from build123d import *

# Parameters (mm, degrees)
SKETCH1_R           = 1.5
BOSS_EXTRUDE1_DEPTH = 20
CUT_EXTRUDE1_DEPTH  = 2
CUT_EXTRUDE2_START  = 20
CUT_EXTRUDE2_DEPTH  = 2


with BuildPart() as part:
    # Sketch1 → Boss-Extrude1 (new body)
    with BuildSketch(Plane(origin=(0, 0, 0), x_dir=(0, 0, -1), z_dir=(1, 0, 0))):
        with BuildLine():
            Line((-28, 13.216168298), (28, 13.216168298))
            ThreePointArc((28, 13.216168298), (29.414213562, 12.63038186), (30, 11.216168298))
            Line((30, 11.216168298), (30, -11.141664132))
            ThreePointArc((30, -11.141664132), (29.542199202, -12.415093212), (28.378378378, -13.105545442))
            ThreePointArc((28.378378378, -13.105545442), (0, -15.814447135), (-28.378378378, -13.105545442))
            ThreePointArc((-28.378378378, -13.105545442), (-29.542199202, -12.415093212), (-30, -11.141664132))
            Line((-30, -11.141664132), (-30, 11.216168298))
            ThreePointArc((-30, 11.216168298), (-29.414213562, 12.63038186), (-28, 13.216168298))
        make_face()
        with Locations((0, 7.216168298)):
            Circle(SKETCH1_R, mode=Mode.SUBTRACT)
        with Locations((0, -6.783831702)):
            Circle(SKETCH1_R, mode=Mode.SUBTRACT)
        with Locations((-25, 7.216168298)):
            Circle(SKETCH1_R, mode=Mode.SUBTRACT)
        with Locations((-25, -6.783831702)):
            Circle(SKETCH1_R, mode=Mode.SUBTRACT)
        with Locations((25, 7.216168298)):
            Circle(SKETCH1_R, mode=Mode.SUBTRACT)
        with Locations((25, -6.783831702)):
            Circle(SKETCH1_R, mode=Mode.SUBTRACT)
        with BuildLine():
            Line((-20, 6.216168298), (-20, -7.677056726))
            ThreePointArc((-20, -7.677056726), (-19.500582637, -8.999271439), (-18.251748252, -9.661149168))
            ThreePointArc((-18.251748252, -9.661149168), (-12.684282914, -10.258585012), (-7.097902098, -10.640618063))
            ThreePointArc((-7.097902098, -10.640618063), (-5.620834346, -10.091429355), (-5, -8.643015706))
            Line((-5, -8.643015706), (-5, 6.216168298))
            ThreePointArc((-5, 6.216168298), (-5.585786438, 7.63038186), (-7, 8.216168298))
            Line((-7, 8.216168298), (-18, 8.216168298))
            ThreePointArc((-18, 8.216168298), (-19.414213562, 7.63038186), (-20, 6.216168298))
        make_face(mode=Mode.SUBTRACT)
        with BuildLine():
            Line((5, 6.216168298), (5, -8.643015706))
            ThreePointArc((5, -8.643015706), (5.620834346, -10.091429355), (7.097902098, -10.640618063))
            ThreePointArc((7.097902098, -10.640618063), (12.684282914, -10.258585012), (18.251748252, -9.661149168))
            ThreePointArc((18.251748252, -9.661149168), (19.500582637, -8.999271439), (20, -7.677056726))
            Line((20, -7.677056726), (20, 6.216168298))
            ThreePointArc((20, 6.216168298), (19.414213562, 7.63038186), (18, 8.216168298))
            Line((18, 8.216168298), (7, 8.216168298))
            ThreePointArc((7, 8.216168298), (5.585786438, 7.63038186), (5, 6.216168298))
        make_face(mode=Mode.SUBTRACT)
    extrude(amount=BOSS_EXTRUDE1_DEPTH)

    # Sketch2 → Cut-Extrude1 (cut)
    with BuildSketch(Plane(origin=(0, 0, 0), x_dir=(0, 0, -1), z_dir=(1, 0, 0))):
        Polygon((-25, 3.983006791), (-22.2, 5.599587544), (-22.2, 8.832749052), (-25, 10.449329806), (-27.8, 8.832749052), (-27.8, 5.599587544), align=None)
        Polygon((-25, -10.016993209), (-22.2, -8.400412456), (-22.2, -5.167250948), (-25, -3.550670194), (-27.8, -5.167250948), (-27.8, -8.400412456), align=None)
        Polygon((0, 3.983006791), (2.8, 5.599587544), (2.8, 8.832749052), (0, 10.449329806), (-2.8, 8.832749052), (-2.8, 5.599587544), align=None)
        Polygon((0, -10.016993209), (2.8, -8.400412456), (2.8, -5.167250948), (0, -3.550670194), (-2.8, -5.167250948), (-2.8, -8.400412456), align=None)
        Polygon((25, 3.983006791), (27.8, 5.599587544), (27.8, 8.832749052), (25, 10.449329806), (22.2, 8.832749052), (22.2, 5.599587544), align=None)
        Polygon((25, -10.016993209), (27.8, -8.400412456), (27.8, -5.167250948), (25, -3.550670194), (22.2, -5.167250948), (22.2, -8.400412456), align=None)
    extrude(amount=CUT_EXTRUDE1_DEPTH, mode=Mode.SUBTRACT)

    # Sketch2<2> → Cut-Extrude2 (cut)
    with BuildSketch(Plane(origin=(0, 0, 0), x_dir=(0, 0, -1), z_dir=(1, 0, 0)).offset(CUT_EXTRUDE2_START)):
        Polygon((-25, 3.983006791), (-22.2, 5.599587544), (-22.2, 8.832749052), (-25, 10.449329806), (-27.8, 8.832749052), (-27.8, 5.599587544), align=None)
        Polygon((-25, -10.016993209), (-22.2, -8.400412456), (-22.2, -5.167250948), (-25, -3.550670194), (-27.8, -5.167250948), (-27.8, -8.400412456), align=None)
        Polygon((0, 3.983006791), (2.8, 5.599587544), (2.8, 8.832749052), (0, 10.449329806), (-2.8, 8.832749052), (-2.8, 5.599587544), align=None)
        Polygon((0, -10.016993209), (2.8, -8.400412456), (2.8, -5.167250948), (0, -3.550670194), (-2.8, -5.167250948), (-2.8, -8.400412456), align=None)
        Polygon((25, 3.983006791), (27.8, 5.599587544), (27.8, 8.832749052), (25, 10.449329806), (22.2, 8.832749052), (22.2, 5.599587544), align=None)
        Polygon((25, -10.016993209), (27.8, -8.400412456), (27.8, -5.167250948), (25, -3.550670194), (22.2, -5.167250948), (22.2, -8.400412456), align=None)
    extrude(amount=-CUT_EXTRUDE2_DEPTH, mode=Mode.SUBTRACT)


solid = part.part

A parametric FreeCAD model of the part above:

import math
import FreeCAD as App
import Part
import Sketcher
Q = App.Units.Quantity

doc = App.newDocument("Part")
body = doc.addObject("PartDesign::Body", "Body")

sketch1 = body.newObject("Sketcher::SketchObject", "Sketch")
sketch1.AttachmentSupport = (doc.getObject("YZ_Plane"), [""])
sketch1.MapMode = "FlatFace"
sketch1.addGeometry(Part.LineSegment(App.Vector(13.2, -28, 0), App.Vector(13.2, 28, 0)), False)
sketch1.addGeometry(Part.ArcOfCircle(Part.Circle(App.Vector(11.2, 28, 0), App.Vector(0, 0, 1), 2), math.radians(0), math.radians(90)), False)
sketch1.addGeometry(Part.LineSegment(App.Vector(11.2, 30, 0), App.Vector(-11.1, 30, 0)), False)
sketch1.addGeometry(Part.ArcOfCircle(Part.Circle(App.Vector(-11.1, 28, 0), App.Vector(0, 0, 1), 2), math.radians(90), math.radians(169)), False)
sketch1.addGeometry(Part.ArcOfCircle(Part.Circle(App.Vector(134.2, 0, 0), App.Vector(0, 0, 1), 150), math.radians(169), math.radians(191)), False)
sketch1.addGeometry(Part.ArcOfCircle(Part.Circle(App.Vector(-11.1, -28, 0), App.Vector(0, 0, 1), 2), math.radians(-169), math.radians(-90)), False)
sketch1.addGeometry(Part.LineSegment(App.Vector(-11.1, -30, 0), App.Vector(11.2, -30, 0)), False)
sketch1.addGeometry(Part.ArcOfCircle(Part.Circle(App.Vector(11.2, -28, 0), App.Vector(0, 0, 1), 2), math.radians(-90), math.radians(0)), False)
sketch1.addGeometry(Part.Circle(App.Vector(-6.8, -25, 0), App.Vector(0, 0, 1), 1.5), False)
sketch1.addGeometry(Part.ArcOfCircle(Part.Circle(App.Vector(6.2, -7, 0), App.Vector(0, 0, 1), 2), math.radians(0), math.radians(90)), False)
sketch1.addGeometry(Part.LineSegment(App.Vector(8.2, -7, 0), App.Vector(8.2, -18, 0)), False)
sketch1.addGeometry(Part.ArcOfCircle(Part.Circle(App.Vector(6.2, -18, 0), App.Vector(0, 0, 1), 2), math.radians(-90), math.radians(0)), False)
sketch1.addGeometry(Part.LineSegment(App.Vector(6.2, -20, 0), App.Vector(-7.7, -20, 0)), False)
sketch1.addGeometry(Part.ArcOfCircle(Part.Circle(App.Vector(-7.7, -18, 0), App.Vector(0, 0, 1), 2), math.radians(-173), math.radians(-90)), False)
sketch1.addGeometry(Part.ArcOfCircle(Part.Circle(App.Vector(134.2, 0, 0), App.Vector(0, 0, 1), 145), math.radians(-177.19), math.radians(-172.77)), False)
sketch1.addGeometry(Part.ArcOfCircle(Part.Circle(App.Vector(-8.6, -7, 0), App.Vector(0, 0, 1), 2), math.radians(90), math.radians(183)), False)
sketch1.addGeometry(Part.LineSegment(App.Vector(-8.6, -5, 0), App.Vector(6.2, -5, 0)), False)
sketch1.addGeometry(Part.Circle(App.Vector(-6.8, 0, 0), App.Vector(0, 0, 1), 1.5), False)
sketch1.addGeometry(Part.Circle(App.Vector(-6.8, 25, 0), App.Vector(0, 0, 1), 1.5), False)
sketch1.addGeometry(Part.ArcOfCircle(Part.Circle(App.Vector(6.2, 18, 0), App.Vector(0, 0, 1), 2), math.radians(0), math.radians(90)), False)
sketch1.addGeometry(Part.LineSegment(App.Vector(8.2, 18, 0), App.Vector(8.2, 7, 0)), False)
sketch1.addGeometry(Part.ArcOfCircle(Part.Circle(App.Vector(6.2, 7, 0), App.Vector(0, 0, 1), 2), math.radians(-90), math.radians(0)), False)
sketch1.addGeometry(Part.LineSegment(App.Vector(6.2, 5, 0), App.Vector(-8.6, 5, 0)), False)
sketch1.addGeometry(Part.ArcOfCircle(Part.Circle(App.Vector(-8.6, 7, 0), App.Vector(0, 0, 1), 2), math.radians(177), math.radians(270)), False)
sketch1.addGeometry(Part.ArcOfCircle(Part.Circle(App.Vector(134.2, 0, 0), App.Vector(0, 0, 1), 145), math.radians(172.77), math.radians(177.19)), False)
sketch1.addGeometry(Part.ArcOfCircle(Part.Circle(App.Vector(-7.7, 18, 0), App.Vector(0, 0, 1), 2), math.radians(90), math.radians(173)), False)
sketch1.addGeometry(Part.LineSegment(App.Vector(-7.7, 20, 0), App.Vector(6.2, 20, 0)), False)
sketch1.addGeometry(Part.Circle(App.Vector(7.2, -25, 0), App.Vector(0, 0, 1), 1.5), False)
sketch1.addGeometry(Part.Circle(App.Vector(7.2, 0, 0), App.Vector(0, 0, 1), 1.5), False)
sketch1.addGeometry(Part.Circle(App.Vector(7.2, 25, 0), App.Vector(0, 0, 1), 1.5), False)
sketch1.addConstraint(Sketcher.Constraint("Tangent", 0, 2, 1, 1))
sketch1.addConstraint(Sketcher.Constraint("Tangent", 1, 2, 2, 1))
sketch1.addConstraint(Sketcher.Constraint("Tangent", 2, 2, 3, 1))
sketch1.addConstraint(Sketcher.Constraint("Tangent", 3, 2, 4, 1))
sketch1.addConstraint(Sketcher.Constraint("Tangent", 4, 2, 5, 1))
sketch1.addConstraint(Sketcher.Constraint("Tangent", 5, 2, 6, 1))
sketch1.addConstraint(Sketcher.Constraint("Tangent", 6, 2, 7, 1))
sketch1.addConstraint(Sketcher.Constraint("Tangent", 7, 2, 0, 1))
sketch1.addConstraint(Sketcher.Constraint("Tangent", 9, 1, 10, 1))
sketch1.addConstraint(Sketcher.Constraint("Tangent", 10, 2, 11, 2))
sketch1.addConstraint(Sketcher.Constraint("Tangent", 11, 1, 12, 1))
sketch1.addConstraint(Sketcher.Constraint("Tangent", 12, 2, 13, 2))
sketch1.addConstraint(Sketcher.Constraint("Tangent", 13, 1, 14, 2))
sketch1.addConstraint(Sketcher.Constraint("Tangent", 14, 1, 15, 2))
sketch1.addConstraint(Sketcher.Constraint("Tangent", 15, 1, 16, 1))
sketch1.addConstraint(Sketcher.Constraint("Tangent", 16, 2, 9, 2))
sketch1.addConstraint(Sketcher.Constraint("Tangent", 19, 1, 20, 1))
sketch1.addConstraint(Sketcher.Constraint("Tangent", 20, 2, 21, 2))
sketch1.addConstraint(Sketcher.Constraint("Tangent", 21, 1, 22, 1))
sketch1.addConstraint(Sketcher.Constraint("Tangent", 22, 2, 23, 2))
sketch1.addConstraint(Sketcher.Constraint("Tangent", 23, 1, 24, 2))
sketch1.addConstraint(Sketcher.Constraint("Tangent", 24, 1, 25, 2))
sketch1.addConstraint(Sketcher.Constraint("Tangent", 25, 1, 26, 1))
sketch1.addConstraint(Sketcher.Constraint("Tangent", 26, 2, 19, 2))
sketch1.addConstraint(Sketcher.Constraint("Vertical", 0))
sketch1.addConstraint(Sketcher.Constraint("Horizontal", 2))
sketch1.addConstraint(Sketcher.Constraint("Horizontal", 6))
sketch1.addConstraint(Sketcher.Constraint("Vertical", 10))
sketch1.addConstraint(Sketcher.Constraint("Horizontal", 12))
sketch1.addConstraint(Sketcher.Constraint("Horizontal", 16))
sketch1.addConstraint(Sketcher.Constraint("Vertical", 20))
sketch1.addConstraint(Sketcher.Constraint("Horizontal", 22))
sketch1.addConstraint(Sketcher.Constraint("Horizontal", 26))
sketch1.addConstraint(Sketcher.Constraint("Coincident", 14, 3, 4, 3))
sketch1.addConstraint(Sketcher.Constraint("Coincident", 24, 3, 4, 3))
sketch1.addConstraint(Sketcher.Constraint("Equal", 1, 3))
sketch1.addConstraint(Sketcher.Constraint("Equal", 3, 5))
sketch1.addConstraint(Sketcher.Constraint("Equal", 5, 7))
sketch1.addConstraint(Sketcher.Constraint("Equal", 7, 9))
sketch1.addConstraint(Sketcher.Constraint("Equal", 9, 11))
sketch1.addConstraint(Sketcher.Constraint("Equal", 11, 13))
sketch1.addConstraint(Sketcher.Constraint("Equal", 13, 15))
sketch1.addConstraint(Sketcher.Constraint("Equal", 8, 17))
sketch1.addConstraint(Sketcher.Constraint("Equal", 17, 18))
sketch1.addConstraint(Sketcher.Constraint("Equal", 15, 19))
sketch1.addConstraint(Sketcher.Constraint("Equal", 19, 21))
sketch1.addConstraint(Sketcher.Constraint("Equal", 21, 23))
sketch1.addConstraint(Sketcher.Constraint("Equal", 14, 24))
sketch1.addConstraint(Sketcher.Constraint("Equal", 23, 25))
sketch1.addConstraint(Sketcher.Constraint("Equal", 18, 27))
sketch1.addConstraint(Sketcher.Constraint("Equal", 27, 28))
sketch1.addConstraint(Sketcher.Constraint("Equal", 28, 29))
sketch1.addConstraint(Sketcher.Constraint("Symmetric", 3, 3, 5, 3, -1))
sketch1.addConstraint(Sketcher.Constraint("Symmetric", 8, 3, 18, 3, -1))
sketch1.addConstraint(Sketcher.Constraint("Symmetric", 11, 3, 19, 3, -1))
sketch1.addConstraint(Sketcher.Constraint("Symmetric", 27, 3, 29, 3, -1))
sketch1.addConstraint(Sketcher.Constraint("PointOnObject", 17, 3, -1))
sketch1.addConstraint(Sketcher.Constraint("PointOnObject", 28, 3, -1))
sketch1.addConstraint(Sketcher.Constraint("Horizontal", 8, 3, 27, 3))
sketch1.addConstraint(Sketcher.Constraint("Vertical", 8, 3, 17, 3))
sketch1.addConstraint(Sketcher.Constraint("Vertical", 15, 3, 23, 3))
sketch1.addConstraint(Sketcher.Constraint("Vertical", 27, 3, 28, 3))
sketch1.addConstraint(Sketcher.Constraint("Diameter", 8, 3.0))
sketch1.addConstraint(Sketcher.Constraint("Radius", 1, 2.0))
sketch1.addConstraint(Sketcher.Constraint("Radius", 4, 150.0))
sketch1.addConstraint(Sketcher.Constraint("Radius", 14, 144.999999))
sketch1.addConstraint(Sketcher.Constraint("DistanceY", 0, 1, 0, 2, 56.0))
sketch1.addConstraint(Sketcher.Constraint("DistanceY", 10, 2, 10, 1, 11.0))
sketch1.addConstraint(Sketcher.Constraint("DistanceY", 8, 3, -1, 1, 25.0))
sketch1.addConstraint(Sketcher.Constraint("DistanceY", 9, 3, -1, 1, 7.0))
sketch1.addConstraint(Sketcher.Constraint("DistanceX", 8, 3, 7, 3, 18.0))
sketch1.addConstraint(Sketcher.Constraint("DistanceX", 9, 3, 7, 3, 5.0))
sketch1.addConstraint(Sketcher.Constraint("DistanceX", 27, 3, 7, 3, 4.0))
sketch1.addConstraint(Sketcher.Constraint("DistanceX", 2, 2, 2, 1, 22.357832))
sketch1.addConstraint(Sketcher.Constraint("DistanceX", -1, 1, 1, 3, 11.216168))
pad1 = body.newObject("PartDesign::Pad", "Pad")
pad1.Profile = sketch1
pad1.Length = 20

sketch2 = body.newObject("Sketcher::SketchObject", "Sketch001")
sketch2.AttachmentSupport = (doc.getObject("YZ_Plane"), [""])
sketch2.MapMode = "FlatFace"
sketch2.addGeometry(Part.LineSegment(App.Vector(4, 25, 0), App.Vector(5.6, 22.2, 0)), False)
sketch2.addGeometry(Part.LineSegment(App.Vector(5.6, 22.2, 0), App.Vector(8.8, 22.2, 0)), False)
sketch2.addGeometry(Part.LineSegment(App.Vector(8.8, 22.2, 0), App.Vector(10.4, 25, 0)), False)
sketch2.addGeometry(Part.LineSegment(App.Vector(10.4, 25, 0), App.Vector(8.8, 27.8, 0)), False)
sketch2.addGeometry(Part.LineSegment(App.Vector(8.8, 27.8, 0), App.Vector(5.6, 27.8, 0)), False)
sketch2.addGeometry(Part.LineSegment(App.Vector(5.6, 27.8, 0), App.Vector(4, 25, 0)), False)
sketch2.addGeometry(Part.LineSegment(App.Vector(-10, 25, 0), App.Vector(-8.4, 22.2, 0)), False)
sketch2.addGeometry(Part.LineSegment(App.Vector(-8.4, 22.2, 0), App.Vector(-5.2, 22.2, 0)), False)
sketch2.addGeometry(Part.LineSegment(App.Vector(-5.2, 22.2, 0), App.Vector(-3.6, 25, 0)), False)
sketch2.addGeometry(Part.LineSegment(App.Vector(-3.6, 25, 0), App.Vector(-5.2, 27.8, 0)), False)
sketch2.addGeometry(Part.LineSegment(App.Vector(-5.2, 27.8, 0), App.Vector(-8.4, 27.8, 0)), False)
sketch2.addGeometry(Part.LineSegment(App.Vector(-8.4, 27.8, 0), App.Vector(-10, 25, 0)), False)
sketch2.addGeometry(Part.LineSegment(App.Vector(4, 0, 0), App.Vector(5.6, -2.8, 0)), False)
sketch2.addGeometry(Part.LineSegment(App.Vector(5.6, -2.8, 0), App.Vector(8.8, -2.8, 0)), False)
sketch2.addGeometry(Part.LineSegment(App.Vector(8.8, -2.8, 0), App.Vector(10.4, 0, 0)), False)
sketch2.addGeometry(Part.LineSegment(App.Vector(10.4, 0, 0), App.Vector(8.8, 2.8, 0)), False)
sketch2.addGeometry(Part.LineSegment(App.Vector(8.8, 2.8, 0), App.Vector(5.6, 2.8, 0)), False)
sketch2.addGeometry(Part.LineSegment(App.Vector(5.6, 2.8, 0), App.Vector(4, 0, 0)), False)
sketch2.addGeometry(Part.LineSegment(App.Vector(-10, 0, 0), App.Vector(-8.4, -2.8, 0)), False)
sketch2.addGeometry(Part.LineSegment(App.Vector(-8.4, -2.8, 0), App.Vector(-5.2, -2.8, 0)), False)
sketch2.addGeometry(Part.LineSegment(App.Vector(-5.2, -2.8, 0), App.Vector(-3.6, 0, 0)), False)
sketch2.addGeometry(Part.LineSegment(App.Vector(-3.6, 0, 0), App.Vector(-5.2, 2.8, 0)), False)
sketch2.addGeometry(Part.LineSegment(App.Vector(-5.2, 2.8, 0), App.Vector(-8.4, 2.8, 0)), False)
sketch2.addGeometry(Part.LineSegment(App.Vector(-8.4, 2.8, 0), App.Vector(-10, 0, 0)), False)
sketch2.addGeometry(Part.LineSegment(App.Vector(4, -25, 0), App.Vector(5.6, -27.8, 0)), False)
sketch2.addGeometry(Part.LineSegment(App.Vector(5.6, -27.8, 0), App.Vector(8.8, -27.8, 0)), False)
sketch2.addGeometry(Part.LineSegment(App.Vector(8.8, -27.8, 0), App.Vector(10.4, -25, 0)), False)
sketch2.addGeometry(Part.LineSegment(App.Vector(10.4, -25, 0), App.Vector(8.8, -22.2, 0)), False)
sketch2.addGeometry(Part.LineSegment(App.Vector(8.8, -22.2, 0), App.Vector(5.6, -22.2, 0)), False)
sketch2.addGeometry(Part.LineSegment(App.Vector(5.6, -22.2, 0), App.Vector(4, -25, 0)), False)
sketch2.addGeometry(Part.LineSegment(App.Vector(-10, -25, 0), App.Vector(-8.4, -27.8, 0)), False)
sketch2.addGeometry(Part.LineSegment(App.Vector(-8.4, -27.8, 0), App.Vector(-5.2, -27.8, 0)), False)
sketch2.addGeometry(Part.LineSegment(App.Vector(-5.2, -27.8, 0), App.Vector(-3.6, -25, 0)), False)
sketch2.addGeometry(Part.LineSegment(App.Vector(-3.6, -25, 0), App.Vector(-5.2, -22.2, 0)), False)
sketch2.addGeometry(Part.LineSegment(App.Vector(-5.2, -22.2, 0), App.Vector(-8.4, -22.2, 0)), False)
sketch2.addGeometry(Part.LineSegment(App.Vector(-8.4, -22.2, 0), App.Vector(-10, -25, 0)), False)
sketch2.addConstraint(Sketcher.Constraint("Coincident", 0, 2, 1, 1))
sketch2.addConstraint(Sketcher.Constraint("Coincident", 1, 2, 2, 1))
sketch2.addConstraint(Sketcher.Constraint("Coincident", 2, 2, 3, 1))
sketch2.addConstraint(Sketcher.Constraint("Coincident", 3, 2, 4, 1))
sketch2.addConstraint(Sketcher.Constraint("Coincident", 4, 2, 5, 1))
sketch2.addConstraint(Sketcher.Constraint("Coincident", 5, 2, 0, 1))
sketch2.addConstraint(Sketcher.Constraint("Coincident", 6, 2, 7, 1))
sketch2.addConstraint(Sketcher.Constraint("Coincident", 7, 2, 8, 1))
sketch2.addConstraint(Sketcher.Constraint("Coincident", 8, 2, 9, 1))
sketch2.addConstraint(Sketcher.Constraint("Coincident", 9, 2, 10, 1))
sketch2.addConstraint(Sketcher.Constraint("Coincident", 10, 2, 11, 1))
sketch2.addConstraint(Sketcher.Constraint("Coincident", 11, 2, 6, 1))
sketch2.addConstraint(Sketcher.Constraint("Coincident", 12, 2, 13, 1))
sketch2.addConstraint(Sketcher.Constraint("Coincident", 13, 2, 14, 1))
sketch2.addConstraint(Sketcher.Constraint("Coincident", 14, 2, 15, 1))
sketch2.addConstraint(Sketcher.Constraint("Coincident", 15, 2, 16, 1))
sketch2.addConstraint(Sketcher.Constraint("Coincident", 16, 2, 17, 1))
sketch2.addConstraint(Sketcher.Constraint("Coincident", 17, 2, 12, 1))
sketch2.addConstraint(Sketcher.Constraint("Coincident", 18, 2, 19, 1))
sketch2.addConstraint(Sketcher.Constraint("Coincident", 19, 2, 20, 1))
sketch2.addConstraint(Sketcher.Constraint("Coincident", 20, 2, 21, 1))
sketch2.addConstraint(Sketcher.Constraint("Coincident", 21, 2, 22, 1))
sketch2.addConstraint(Sketcher.Constraint("Coincident", 22, 2, 23, 1))
sketch2.addConstraint(Sketcher.Constraint("Coincident", 23, 2, 18, 1))
sketch2.addConstraint(Sketcher.Constraint("Coincident", 24, 2, 25, 1))
sketch2.addConstraint(Sketcher.Constraint("Coincident", 25, 2, 26, 1))
sketch2.addConstraint(Sketcher.Constraint("Coincident", 26, 2, 27, 1))
sketch2.addConstraint(Sketcher.Constraint("Coincident", 27, 2, 28, 1))
sketch2.addConstraint(Sketcher.Constraint("Coincident", 28, 2, 29, 1))
sketch2.addConstraint(Sketcher.Constraint("Coincident", 29, 2, 24, 1))
sketch2.addConstraint(Sketcher.Constraint("Coincident", 30, 2, 31, 1))
sketch2.addConstraint(Sketcher.Constraint("Coincident", 31, 2, 32, 1))
sketch2.addConstraint(Sketcher.Constraint("Coincident", 32, 2, 33, 1))
sketch2.addConstraint(Sketcher.Constraint("Coincident", 33, 2, 34, 1))
sketch2.addConstraint(Sketcher.Constraint("Coincident", 34, 2, 35, 1))
sketch2.addConstraint(Sketcher.Constraint("Coincident", 35, 2, 30, 1))
sketch2.addConstraint(Sketcher.Constraint("Horizontal", 1))
sketch2.addConstraint(Sketcher.Constraint("Horizontal", 4))
sketch2.addConstraint(Sketcher.Constraint("Horizontal", 7))
sketch2.addConstraint(Sketcher.Constraint("Horizontal", 10))
sketch2.addConstraint(Sketcher.Constraint("Horizontal", 13))
sketch2.addConstraint(Sketcher.Constraint("Horizontal", 16))
sketch2.addConstraint(Sketcher.Constraint("Horizontal", 19))
sketch2.addConstraint(Sketcher.Constraint("Horizontal", 22))
sketch2.addConstraint(Sketcher.Constraint("Horizontal", 25))
sketch2.addConstraint(Sketcher.Constraint("Horizontal", 28))
sketch2.addConstraint(Sketcher.Constraint("Horizontal", 31))
sketch2.addConstraint(Sketcher.Constraint("Horizontal", 34))
sketch2.addConstraint(Sketcher.Constraint("Symmetric", 13, 2, 15, 2, -1))
sketch2.addConstraint(Sketcher.Constraint("Symmetric", 19, 2, 21, 2, -1))
sketch2.addConstraint(Sketcher.Constraint("Symmetric", 4, 2, 24, 2, -1))
sketch2.addConstraint(Sketcher.Constraint("Symmetric", 2, 2, 26, 2, -1))
sketch2.addConstraint(Sketcher.Constraint("Symmetric", 1, 2, 27, 2, -1))
sketch2.addConstraint(Sketcher.Constraint("Symmetric", 5, 2, 29, 2, -1))
sketch2.addConstraint(Sketcher.Constraint("Symmetric", 10, 2, 30, 2, -1))
sketch2.addConstraint(Sketcher.Constraint("Symmetric", 8, 2, 32, 2, -1))
sketch2.addConstraint(Sketcher.Constraint("Symmetric", 7, 2, 33, 2, -1))
sketch2.addConstraint(Sketcher.Constraint("Symmetric", 11, 2, 35, 2, -1))
sketch2.addConstraint(Sketcher.Constraint("PointOnObject", 14, 2, -1))
sketch2.addConstraint(Sketcher.Constraint("PointOnObject", 17, 2, -1))
sketch2.addConstraint(Sketcher.Constraint("PointOnObject", 20, 2, -1))
sketch2.addConstraint(Sketcher.Constraint("PointOnObject", 23, 2, -1))
sketch2.addConstraint(Sketcher.Constraint("Parallel", 0, 3))
sketch2.addConstraint(Sketcher.Constraint("Parallel", 2, 5))
sketch2.addConstraint(Sketcher.Constraint("Parallel", 3, 6))
sketch2.addConstraint(Sketcher.Constraint("Parallel", 5, 8))
sketch2.addConstraint(Sketcher.Constraint("Parallel", 6, 9))
sketch2.addConstraint(Sketcher.Constraint("Parallel", 8, 11))
sketch2.addConstraint(Sketcher.Constraint("Parallel", 9, 12))
sketch2.addConstraint(Sketcher.Constraint("Parallel", 11, 14))
sketch2.addConstraint(Sketcher.Constraint("Parallel", 12, 15))
sketch2.addConstraint(Sketcher.Constraint("Parallel", 14, 17))
sketch2.addConstraint(Sketcher.Constraint("Parallel", 15, 18))
sketch2.addConstraint(Sketcher.Constraint("Parallel", 17, 20))
sketch2.addConstraint(Sketcher.Constraint("Parallel", 20, 23))
sketch2.addConstraint(Sketcher.Constraint("Parallel", 23, 26))
sketch2.addConstraint(Sketcher.Constraint("Parallel", 26, 29))
sketch2.addConstraint(Sketcher.Constraint("Parallel", 29, 32))
sketch2.addConstraint(Sketcher.Constraint("Parallel", 32, 35))
sketch2.addConstraint(Sketcher.Constraint("Horizontal", 2, 2, 5, 2))
sketch2.addConstraint(Sketcher.Constraint("Horizontal", 1, 2, 6, 2))
sketch2.addConstraint(Sketcher.Constraint("Horizontal", 5, 2, 8, 2))
sketch2.addConstraint(Sketcher.Constraint("Horizontal", 4, 2, 9, 2))
sketch2.addConstraint(Sketcher.Constraint("Horizontal", 8, 2, 11, 2))
sketch2.addConstraint(Sketcher.Constraint("Horizontal", 13, 2, 18, 2))
sketch2.addConstraint(Sketcher.Constraint("Vertical", 1, 2, 3, 2))
sketch2.addConstraint(Sketcher.Constraint("Vertical", 4, 2, 12, 2))
sketch2.addConstraint(Sketcher.Constraint("Vertical", 3, 2, 13, 2))
sketch2.addConstraint(Sketcher.Constraint("Vertical", 2, 2, 14, 2))
sketch2.addConstraint(Sketcher.Constraint("Vertical", 10, 2, 18, 2))
sketch2.addConstraint(Sketcher.Constraint("Vertical", 9, 2, 19, 2))
sketch2.addConstraint(Sketcher.Constraint("Equal", 4, 7))
sketch2.addConstraint(Sketcher.Constraint("Angle", 0, Q("-60 deg")))
sketch2.addConstraint(Sketcher.Constraint("DistanceY", -1, 1, 2, 2, 25.0))
sketch2.addConstraint(Sketcher.Constraint("DistanceX", 6, 2, 0, 2, 14.0))
sketch2.addConstraint(Sketcher.Constraint("DistanceY", -1, 1, 0, 2, 22.2))
sketch2.addConstraint(Sketcher.Constraint("DistanceX", 1, 1, 1, 2, 3.233162))
sketch2.addConstraint(Sketcher.Constraint("DistanceX", -1, 1, 1, 2, 8.832749))
pocket1 = body.newObject("PartDesign::Pocket", "Pocket")
pocket1.Profile = sketch2
pocket1.Length = 2
pocket1.Reversed = True

sketch3 = body.newObject("Sketcher::SketchObject", "Sketch002")
sketch3.AttachmentSupport = (doc.getObject("YZ_Plane"), [""])
sketch3.MapMode = "FlatFace"
sketch3.AttachmentOffset = App.Placement(App.Vector(0, 0, 20), App.Rotation())
sketch3.addGeometry(Part.LineSegment(App.Vector(4, 25, 0), App.Vector(5.6, 22.2, 0)), False)
sketch3.addGeometry(Part.LineSegment(App.Vector(5.6, 22.2, 0), App.Vector(8.8, 22.2, 0)), False)
sketch3.addGeometry(Part.LineSegment(App.Vector(8.8, 22.2, 0), App.Vector(10.4, 25, 0)), False)
sketch3.addGeometry(Part.LineSegment(App.Vector(10.4, 25, 0), App.Vector(8.8, 27.8, 0)), False)
sketch3.addGeometry(Part.LineSegment(App.Vector(8.8, 27.8, 0), App.Vector(5.6, 27.8, 0)), False)
sketch3.addGeometry(Part.LineSegment(App.Vector(5.6, 27.8, 0), App.Vector(4, 25, 0)), False)
sketch3.addGeometry(Part.LineSegment(App.Vector(-10, 25, 0), App.Vector(-8.4, 22.2, 0)), False)
sketch3.addGeometry(Part.LineSegment(App.Vector(-8.4, 22.2, 0), App.Vector(-5.2, 22.2, 0)), False)
sketch3.addGeometry(Part.LineSegment(App.Vector(-5.2, 22.2, 0), App.Vector(-3.6, 25, 0)), False)
sketch3.addGeometry(Part.LineSegment(App.Vector(-3.6, 25, 0), App.Vector(-5.2, 27.8, 0)), False)
sketch3.addGeometry(Part.LineSegment(App.Vector(-5.2, 27.8, 0), App.Vector(-8.4, 27.8, 0)), False)
sketch3.addGeometry(Part.LineSegment(App.Vector(-8.4, 27.8, 0), App.Vector(-10, 25, 0)), False)
sketch3.addGeometry(Part.LineSegment(App.Vector(4, 0, 0), App.Vector(5.6, -2.8, 0)), False)
sketch3.addGeometry(Part.LineSegment(App.Vector(5.6, -2.8, 0), App.Vector(8.8, -2.8, 0)), False)
sketch3.addGeometry(Part.LineSegment(App.Vector(8.8, -2.8, 0), App.Vector(10.4, 0, 0)), False)
sketch3.addGeometry(Part.LineSegment(App.Vector(10.4, 0, 0), App.Vector(8.8, 2.8, 0)), False)
sketch3.addGeometry(Part.LineSegment(App.Vector(8.8, 2.8, 0), App.Vector(5.6, 2.8, 0)), False)
sketch3.addGeometry(Part.LineSegment(App.Vector(5.6, 2.8, 0), App.Vector(4, 0, 0)), False)
sketch3.addGeometry(Part.LineSegment(App.Vector(-10, 0, 0), App.Vector(-8.4, -2.8, 0)), False)
sketch3.addGeometry(Part.LineSegment(App.Vector(-8.4, -2.8, 0), App.Vector(-5.2, -2.8, 0)), False)
sketch3.addGeometry(Part.LineSegment(App.Vector(-5.2, -2.8, 0), App.Vector(-3.6, 0, 0)), False)
sketch3.addGeometry(Part.LineSegment(App.Vector(-3.6, 0, 0), App.Vector(-5.2, 2.8, 0)), False)
sketch3.addGeometry(Part.LineSegment(App.Vector(-5.2, 2.8, 0), App.Vector(-8.4, 2.8, 0)), False)
sketch3.addGeometry(Part.LineSegment(App.Vector(-8.4, 2.8, 0), App.Vector(-10, 0, 0)), False)
sketch3.addGeometry(Part.LineSegment(App.Vector(4, -25, 0), App.Vector(5.6, -27.8, 0)), False)
sketch3.addGeometry(Part.LineSegment(App.Vector(5.6, -27.8, 0), App.Vector(8.8, -27.8, 0)), False)
sketch3.addGeometry(Part.LineSegment(App.Vector(8.8, -27.8, 0), App.Vector(10.4, -25, 0)), False)
sketch3.addGeometry(Part.LineSegment(App.Vector(10.4, -25, 0), App.Vector(8.8, -22.2, 0)), False)
sketch3.addGeometry(Part.LineSegment(App.Vector(8.8, -22.2, 0), App.Vector(5.6, -22.2, 0)), False)
sketch3.addGeometry(Part.LineSegment(App.Vector(5.6, -22.2, 0), App.Vector(4, -25, 0)), False)
sketch3.addGeometry(Part.LineSegment(App.Vector(-10, -25, 0), App.Vector(-8.4, -27.8, 0)), False)
sketch3.addGeometry(Part.LineSegment(App.Vector(-8.4, -27.8, 0), App.Vector(-5.2, -27.8, 0)), False)
sketch3.addGeometry(Part.LineSegment(App.Vector(-5.2, -27.8, 0), App.Vector(-3.6, -25, 0)), False)
sketch3.addGeometry(Part.LineSegment(App.Vector(-3.6, -25, 0), App.Vector(-5.2, -22.2, 0)), False)
sketch3.addGeometry(Part.LineSegment(App.Vector(-5.2, -22.2, 0), App.Vector(-8.4, -22.2, 0)), False)
sketch3.addGeometry(Part.LineSegment(App.Vector(-8.4, -22.2, 0), App.Vector(-10, -25, 0)), False)
sketch3.addConstraint(Sketcher.Constraint("Coincident", 0, 2, 1, 1))
sketch3.addConstraint(Sketcher.Constraint("Coincident", 1, 2, 2, 1))
sketch3.addConstraint(Sketcher.Constraint("Coincident", 2, 2, 3, 1))
sketch3.addConstraint(Sketcher.Constraint("Coincident", 3, 2, 4, 1))
sketch3.addConstraint(Sketcher.Constraint("Coincident", 4, 2, 5, 1))
sketch3.addConstraint(Sketcher.Constraint("Coincident", 5, 2, 0, 1))
sketch3.addConstraint(Sketcher.Constraint("Coincident", 6, 2, 7, 1))
sketch3.addConstraint(Sketcher.Constraint("Coincident", 7, 2, 8, 1))
sketch3.addConstraint(Sketcher.Constraint("Coincident", 8, 2, 9, 1))
sketch3.addConstraint(Sketcher.Constraint("Coincident", 9, 2, 10, 1))
sketch3.addConstraint(Sketcher.Constraint("Coincident", 10, 2, 11, 1))
sketch3.addConstraint(Sketcher.Constraint("Coincident", 11, 2, 6, 1))
sketch3.addConstraint(Sketcher.Constraint("Coincident", 12, 2, 13, 1))
sketch3.addConstraint(Sketcher.Constraint("Coincident", 13, 2, 14, 1))
sketch3.addConstraint(Sketcher.Constraint("Coincident", 14, 2, 15, 1))
sketch3.addConstraint(Sketcher.Constraint("Coincident", 15, 2, 16, 1))
sketch3.addConstraint(Sketcher.Constraint("Coincident", 16, 2, 17, 1))
sketch3.addConstraint(Sketcher.Constraint("Coincident", 17, 2, 12, 1))
sketch3.addConstraint(Sketcher.Constraint("Coincident", 18, 2, 19, 1))
sketch3.addConstraint(Sketcher.Constraint("Coincident", 19, 2, 20, 1))
sketch3.addConstraint(Sketcher.Constraint("Coincident", 20, 2, 21, 1))
sketch3.addConstraint(Sketcher.Constraint("Coincident", 21, 2, 22, 1))
sketch3.addConstraint(Sketcher.Constraint("Coincident", 22, 2, 23, 1))
sketch3.addConstraint(Sketcher.Constraint("Coincident", 23, 2, 18, 1))
sketch3.addConstraint(Sketcher.Constraint("Coincident", 24, 2, 25, 1))
sketch3.addConstraint(Sketcher.Constraint("Coincident", 25, 2, 26, 1))
sketch3.addConstraint(Sketcher.Constraint("Coincident", 26, 2, 27, 1))
sketch3.addConstraint(Sketcher.Constraint("Coincident", 27, 2, 28, 1))
sketch3.addConstraint(Sketcher.Constraint("Coincident", 28, 2, 29, 1))
sketch3.addConstraint(Sketcher.Constraint("Coincident", 29, 2, 24, 1))
sketch3.addConstraint(Sketcher.Constraint("Coincident", 30, 2, 31, 1))
sketch3.addConstraint(Sketcher.Constraint("Coincident", 31, 2, 32, 1))
sketch3.addConstraint(Sketcher.Constraint("Coincident", 32, 2, 33, 1))
sketch3.addConstraint(Sketcher.Constraint("Coincident", 33, 2, 34, 1))
sketch3.addConstraint(Sketcher.Constraint("Coincident", 34, 2, 35, 1))
sketch3.addConstraint(Sketcher.Constraint("Coincident", 35, 2, 30, 1))
sketch3.addConstraint(Sketcher.Constraint("Horizontal", 1))
sketch3.addConstraint(Sketcher.Constraint("Horizontal", 4))
sketch3.addConstraint(Sketcher.Constraint("Horizontal", 7))
sketch3.addConstraint(Sketcher.Constraint("Horizontal", 10))
sketch3.addConstraint(Sketcher.Constraint("Horizontal", 13))
sketch3.addConstraint(Sketcher.Constraint("Horizontal", 16))
sketch3.addConstraint(Sketcher.Constraint("Horizontal", 19))
sketch3.addConstraint(Sketcher.Constraint("Horizontal", 22))
sketch3.addConstraint(Sketcher.Constraint("Horizontal", 25))
sketch3.addConstraint(Sketcher.Constraint("Horizontal", 28))
sketch3.addConstraint(Sketcher.Constraint("Horizontal", 31))
sketch3.addConstraint(Sketcher.Constraint("Horizontal", 34))
sketch3.addConstraint(Sketcher.Constraint("Symmetric", 13, 2, 15, 2, -1))
sketch3.addConstraint(Sketcher.Constraint("Symmetric", 19, 2, 21, 2, -1))
sketch3.addConstraint(Sketcher.Constraint("Symmetric", 4, 2, 24, 2, -1))
sketch3.addConstraint(Sketcher.Constraint("Symmetric", 2, 2, 26, 2, -1))
sketch3.addConstraint(Sketcher.Constraint("Symmetric", 1, 2, 27, 2, -1))
sketch3.addConstraint(Sketcher.Constraint("Symmetric", 5, 2, 29, 2, -1))
sketch3.addConstraint(Sketcher.Constraint("Symmetric", 10, 2, 30, 2, -1))
sketch3.addConstraint(Sketcher.Constraint("Symmetric", 8, 2, 32, 2, -1))
sketch3.addConstraint(Sketcher.Constraint("Symmetric", 7, 2, 33, 2, -1))
sketch3.addConstraint(Sketcher.Constraint("Symmetric", 11, 2, 35, 2, -1))
sketch3.addConstraint(Sketcher.Constraint("PointOnObject", 14, 2, -1))
sketch3.addConstraint(Sketcher.Constraint("PointOnObject", 17, 2, -1))
sketch3.addConstraint(Sketcher.Constraint("PointOnObject", 20, 2, -1))
sketch3.addConstraint(Sketcher.Constraint("PointOnObject", 23, 2, -1))
sketch3.addConstraint(Sketcher.Constraint("Parallel", 0, 3))
sketch3.addConstraint(Sketcher.Constraint("Parallel", 2, 5))
sketch3.addConstraint(Sketcher.Constraint("Parallel", 3, 6))
sketch3.addConstraint(Sketcher.Constraint("Parallel", 5, 8))
sketch3.addConstraint(Sketcher.Constraint("Parallel", 6, 9))
sketch3.addConstraint(Sketcher.Constraint("Parallel", 8, 11))
sketch3.addConstraint(Sketcher.Constraint("Parallel", 9, 12))
sketch3.addConstraint(Sketcher.Constraint("Parallel", 11, 14))
sketch3.addConstraint(Sketcher.Constraint("Parallel", 12, 15))
sketch3.addConstraint(Sketcher.Constraint("Parallel", 14, 17))
sketch3.addConstraint(Sketcher.Constraint("Parallel", 15, 18))
sketch3.addConstraint(Sketcher.Constraint("Parallel", 17, 20))
sketch3.addConstraint(Sketcher.Constraint("Parallel", 20, 23))
sketch3.addConstraint(Sketcher.Constraint("Parallel", 23, 26))
sketch3.addConstraint(Sketcher.Constraint("Parallel", 26, 29))
sketch3.addConstraint(Sketcher.Constraint("Parallel", 29, 32))
sketch3.addConstraint(Sketcher.Constraint("Parallel", 32, 35))
sketch3.addConstraint(Sketcher.Constraint("Horizontal", 2, 2, 5, 2))
sketch3.addConstraint(Sketcher.Constraint("Horizontal", 1, 2, 6, 2))
sketch3.addConstraint(Sketcher.Constraint("Horizontal", 5, 2, 8, 2))
sketch3.addConstraint(Sketcher.Constraint("Horizontal", 4, 2, 9, 2))
sketch3.addConstraint(Sketcher.Constraint("Horizontal", 8, 2, 11, 2))
sketch3.addConstraint(Sketcher.Constraint("Horizontal", 13, 2, 18, 2))
sketch3.addConstraint(Sketcher.Constraint("Vertical", 1, 2, 3, 2))
sketch3.addConstraint(Sketcher.Constraint("Vertical", 4, 2, 12, 2))
sketch3.addConstraint(Sketcher.Constraint("Vertical", 3, 2, 13, 2))
sketch3.addConstraint(Sketcher.Constraint("Vertical", 2, 2, 14, 2))
sketch3.addConstraint(Sketcher.Constraint("Vertical", 10, 2, 18, 2))
sketch3.addConstraint(Sketcher.Constraint("Vertical", 9, 2, 19, 2))
sketch3.addConstraint(Sketcher.Constraint("Equal", 4, 7))
sketch3.addConstraint(Sketcher.Constraint("Angle", 0, Q("-60 deg")))
sketch3.addConstraint(Sketcher.Constraint("DistanceY", -1, 1, 2, 2, 25.0))
sketch3.addConstraint(Sketcher.Constraint("DistanceX", 6, 2, 0, 2, 14.0))
sketch3.addConstraint(Sketcher.Constraint("DistanceY", -1, 1, 0, 2, 22.2))
sketch3.addConstraint(Sketcher.Constraint("DistanceX", 1, 1, 1, 2, 3.233162))
sketch3.addConstraint(Sketcher.Constraint("DistanceX", -1, 1, 1, 2, 8.832749))
pocket2 = body.newObject("PartDesign::Pocket", "Pocket001")
pocket2.Profile = sketch3
pocket2.Length = 2

doc.recompute()
